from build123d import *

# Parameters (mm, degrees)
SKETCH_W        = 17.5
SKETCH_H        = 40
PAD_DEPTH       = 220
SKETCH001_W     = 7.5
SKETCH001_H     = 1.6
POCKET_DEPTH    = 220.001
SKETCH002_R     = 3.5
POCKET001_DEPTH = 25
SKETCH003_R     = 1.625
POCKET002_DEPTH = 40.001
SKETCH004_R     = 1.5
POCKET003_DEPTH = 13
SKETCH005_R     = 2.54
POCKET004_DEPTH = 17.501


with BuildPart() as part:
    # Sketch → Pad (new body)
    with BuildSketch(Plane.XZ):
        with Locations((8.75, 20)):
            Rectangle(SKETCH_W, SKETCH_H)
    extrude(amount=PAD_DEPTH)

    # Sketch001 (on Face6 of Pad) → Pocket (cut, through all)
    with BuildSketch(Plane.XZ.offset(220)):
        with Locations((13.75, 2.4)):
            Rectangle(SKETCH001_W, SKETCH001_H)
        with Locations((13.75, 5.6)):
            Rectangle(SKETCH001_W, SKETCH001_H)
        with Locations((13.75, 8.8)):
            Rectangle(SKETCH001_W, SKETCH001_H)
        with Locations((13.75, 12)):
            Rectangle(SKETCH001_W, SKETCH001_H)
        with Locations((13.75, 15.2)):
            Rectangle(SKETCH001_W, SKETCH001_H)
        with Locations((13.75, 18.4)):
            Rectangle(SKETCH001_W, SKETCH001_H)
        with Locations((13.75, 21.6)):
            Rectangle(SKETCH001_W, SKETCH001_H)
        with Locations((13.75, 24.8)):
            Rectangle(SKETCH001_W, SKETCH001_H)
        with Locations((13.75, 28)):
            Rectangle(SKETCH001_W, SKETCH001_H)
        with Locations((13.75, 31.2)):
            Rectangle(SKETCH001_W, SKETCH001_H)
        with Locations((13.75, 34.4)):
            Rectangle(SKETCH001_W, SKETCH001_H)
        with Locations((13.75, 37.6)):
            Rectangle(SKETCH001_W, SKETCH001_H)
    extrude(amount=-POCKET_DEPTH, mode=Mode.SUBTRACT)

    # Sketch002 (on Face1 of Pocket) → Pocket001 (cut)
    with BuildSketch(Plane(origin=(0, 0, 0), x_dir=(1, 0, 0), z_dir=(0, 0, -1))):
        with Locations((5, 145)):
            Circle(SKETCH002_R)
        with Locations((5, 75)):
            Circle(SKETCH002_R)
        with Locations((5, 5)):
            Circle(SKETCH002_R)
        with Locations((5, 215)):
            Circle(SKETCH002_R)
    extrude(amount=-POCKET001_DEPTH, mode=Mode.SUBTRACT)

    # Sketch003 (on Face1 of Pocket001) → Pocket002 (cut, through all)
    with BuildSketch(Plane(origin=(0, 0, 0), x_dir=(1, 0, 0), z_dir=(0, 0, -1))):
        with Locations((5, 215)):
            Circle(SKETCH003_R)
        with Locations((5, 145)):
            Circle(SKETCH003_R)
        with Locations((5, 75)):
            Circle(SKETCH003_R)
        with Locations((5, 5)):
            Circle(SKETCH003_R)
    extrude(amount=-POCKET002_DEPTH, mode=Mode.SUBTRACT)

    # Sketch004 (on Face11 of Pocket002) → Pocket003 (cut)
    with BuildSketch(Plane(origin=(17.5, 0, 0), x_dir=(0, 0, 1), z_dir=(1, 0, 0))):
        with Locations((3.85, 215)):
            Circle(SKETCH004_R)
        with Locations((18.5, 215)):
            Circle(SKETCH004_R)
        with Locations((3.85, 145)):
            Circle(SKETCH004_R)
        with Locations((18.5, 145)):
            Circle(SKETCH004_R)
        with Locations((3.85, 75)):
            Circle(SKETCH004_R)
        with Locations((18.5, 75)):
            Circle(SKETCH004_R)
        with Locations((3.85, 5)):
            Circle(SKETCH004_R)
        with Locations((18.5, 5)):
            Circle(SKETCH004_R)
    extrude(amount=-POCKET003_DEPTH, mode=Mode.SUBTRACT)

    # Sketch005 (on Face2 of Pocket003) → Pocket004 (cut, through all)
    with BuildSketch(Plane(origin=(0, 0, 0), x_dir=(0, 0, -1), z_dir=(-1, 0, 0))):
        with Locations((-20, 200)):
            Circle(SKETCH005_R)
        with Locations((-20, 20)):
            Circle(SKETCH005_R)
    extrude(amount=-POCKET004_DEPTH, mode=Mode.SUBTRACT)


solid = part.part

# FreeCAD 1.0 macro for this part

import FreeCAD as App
import Part
import Sketcher
from FreeCAD import Vector


def add_polygon(sketch, points):
    """Adds a closed chain of lines whose ends are joined by coincident constraints."""
    first, n = sketch.GeometryCount, len(points)
    for a, b in zip(points, points[1:] + points[:1]):
        sketch.addGeometry(Part.LineSegment(App.Vector(*a, 0), App.Vector(*b, 0)), False)
    for i in range(n):
        sketch.addConstraint(Sketcher.Constraint("Coincident", first + i, 2, first + (i + 1) % n, 1))

doc = App.newDocument("Part")
params = doc.addObject("Spreadsheet::Sheet", "Params")
for row, (alias, value) in enumerate([
    ("sketch1_height", "40 mm"),
    ("sketch1_width", "17.5 mm"),
    ("pad1_length", "220 mm"),
    ("sketch2_width", "7.5 mm"),
    ("sketch2_height", "1.6 mm"),
    ("sketch3_diameter", "7 mm"),
    ("pocket2_length", "25 mm"),
    ("sketch4_diameter", "3.25 mm"),
    ("sketch5_diameter", "3 mm"),
    ("pocket4_length", "13 mm"),
    ("sketch6_diameter", "5.08 mm"),
], start=1):
    params.set(f"A{row}", alias)
    params.set(f"B{row}", "=" + value)
    params.setAlias(f"B{row}", alias)

body = doc.addObject("PartDesign::Body", "Body")

# Sketch on XZ plane
sketch1 = doc.addObject("Sketcher::SketchObject", "Sketch")
body.addObject(sketch1)
sketch1.AttachmentSupport = (doc.XZ_Plane, [""])
sketch1.MapMode = "FlatFace"
add_polygon(sketch1, [(0, 40), (0, 0), (17.5, 0), (17.5, 40)])  # lines 0-3
sketch1.addConstraint([
    Sketcher.Constraint("Vertical", 0),
    Sketcher.Constraint("Horizontal", 1),
    Sketcher.Constraint("Vertical", 2),
    Sketcher.Constraint("Horizontal", 3),
    Sketcher.Constraint("Coincident", 0, 2, -1, 1),
    Sketcher.Constraint("DistanceY", 0, 2, 0, 1, 40.0),
    Sketcher.Constraint("DistanceX", 1, 1, 1, 2, 17.5),
])
sketch1.setExpression("Constraints[9]", "Params.sketch1_height")
sketch1.setExpression("Constraints[10]", "Params.sketch1_width")
pad1 = doc.addObject("PartDesign::Pad", "Pad")
body.addObject(pad1)
pad1.Profile = sketch1
pad1.setExpression("Length", "Params.pad1_length")

# Sketch on XZ plane
sketch2 = doc.addObject("Sketcher::SketchObject", "Sketch001")
body.addObject(sketch2)
sketch2.AttachmentSupport = (doc.XZ_Plane, [""])
sketch2.MapMode = "FlatFace"
sketch2.AttachmentOffset = App.Placement(Vector(0, 0, 220), App.Rotation())
add_polygon(sketch2, [(10, 3.2), (10, 1.6), (17.5, 1.6), (17.5, 3.2)])  # lines 0-3
add_polygon(sketch2, [(10, 6.4), (10, 4.8), (17.5, 4.8), (17.5, 6.4)])  # lines 4-7
add_polygon(sketch2, [(10, 9.6), (10, 8), (17.5, 8), (17.5, 9.6)])  # lines 8-11
add_polygon(sketch2, [(10, 12.8), (10, 11.2), (17.5, 11.2), (17.5, 12.8)])  # lines 12-15
add_polygon(sketch2, [(10, 16), (10, 14.4), (17.5, 14.4), (17.5, 16)])  # lines 16-19
add_polygon(sketch2, [(10, 19.2), (10, 17.6), (17.5, 17.6), (17.5, 19.2)])  # lines 20-23
add_polygon(sketch2, [(10, 22.4), (10, 20.8), (17.5, 20.8), (17.5, 22.4)])  # lines 24-27
add_polygon(sketch2, [(10, 25.6), (10, 24), (17.5, 24), (17.5, 25.6)])  # lines 28-31
add_polygon(sketch2, [(10, 28.8), (10, 27.2), (17.5, 27.2), (17.5, 28.8)])  # lines 32-35
add_polygon(sketch2, [(10, 32), (10, 30.4), (17.5, 30.4), (17.5, 32)])  # lines 36-39
add_polygon(sketch2, [(10, 35.2), (10, 33.6), (17.5, 33.6), (17.5, 35.2)])  # lines 40-43
add_polygon(sketch2, [(10, 38.4), (10, 36.8), (17.5, 36.8), (17.5, 38.4)])  # lines 44-47
sketch2.addConstraint([
    Sketcher.Constraint("Vertical", 0),
    Sketcher.Constraint("Horizontal", 1),
    Sketcher.Constraint("Vertical", 2),
    Sketcher.Constraint("Horizontal", 3),
    Sketcher.Constraint("Vertical", 4),
    Sketcher.Constraint("Horizontal", 5),
    Sketcher.Constraint("Vertical", 6),
    Sketcher.Constraint("Horizontal", 7),
    Sketcher.Constraint("Vertical", 8),
    Sketcher.Constraint("Horizontal", 9),
    Sketcher.Constraint("Vertical", 10),
    Sketcher.Constraint("Horizontal", 11),
    Sketcher.Constraint("Vertical", 12),
    Sketcher.Constraint("Horizontal", 13),
    Sketcher.Constraint("Vertical", 14),
    Sketcher.Constraint("Horizontal", 15),
    Sketcher.Constraint("Vertical", 16),
    Sketcher.Constraint("Horizontal", 17),
    Sketcher.Constraint("Vertical", 18),
    Sketcher.Constraint("Horizontal", 19),
    Sketcher.Constraint("Vertical", 20),
    Sketcher.Constraint("Horizontal", 21),
    Sketcher.Constraint("Vertical", 22),
    Sketcher.Constraint("Horizontal", 23),
    Sketcher.Constraint("Vertical", 24),
    Sketcher.Constraint("Horizontal", 25),
    Sketcher.Constraint("Vertical", 26),
    Sketcher.Constraint("Horizontal", 27),
    Sketcher.Constraint("Vertical", 28),
    Sketcher.Constraint("Horizontal", 29),
    Sketcher.Constraint("Vertical", 30),
    Sketcher.Constraint("Horizontal", 31),
    Sketcher.Constraint("Vertical", 32),
    Sketcher.Constraint("Horizontal", 33),
    Sketcher.Constraint("Vertical", 34),
    Sketcher.Constraint("Horizontal", 35),
    Sketcher.Constraint("Vertical", 36),
    Sketcher.Constraint("Horizontal", 37),
    Sketcher.Constraint("Vertical", 38),
    Sketcher.Constraint("Horizontal", 39),
    Sketcher.Constraint("Vertical", 40),
    Sketcher.Constraint("Horizontal", 41),
    Sketcher.Constraint("Vertical", 42),
    Sketcher.Constraint("Horizontal", 43),
    Sketcher.Constraint("Vertical", 44),
    Sketcher.Constraint("Horizontal", 45),
    Sketcher.Constraint("Vertical", 46),
    Sketcher.Constraint("Horizontal", 47),
    Sketcher.Constraint("Vertical", 3, 2, 4, 2),
    Sketcher.Constraint("Vertical", 2, 2, 5, 2),
    Sketcher.Constraint("Vertical", 7, 2, 8, 2),
    Sketcher.Constraint("Vertical", 6, 2, 9, 2),
    Sketcher.Constraint("Vertical", 11, 2, 12, 2),
    Sketcher.Constraint("Vertical", 10, 2, 13, 2),
    Sketcher.Constraint("Vertical", 15, 2, 16, 2),
    Sketcher.Constraint("Vertical", 14, 2, 17, 2),
    Sketcher.Constraint("Vertical", 19, 2, 20, 2),
    Sketcher.Constraint("Vertical", 18, 2, 21, 2),
    Sketcher.Constraint("Vertical", 23, 2, 24, 2),
    Sketcher.Constraint("Vertical", 22, 2, 25, 2),
    Sketcher.Constraint("Vertical", 27, 2, 28, 2),
    Sketcher.Constraint("Vertical", 26, 2, 29, 2),
    Sketcher.Constraint("Vertical", 31, 2, 32, 2),
    Sketcher.Constraint("Vertical", 30, 2, 33, 2),
    Sketcher.Constraint("Vertical", 35, 2, 36, 2),
    Sketcher.Constraint("Vertical", 34, 2, 37, 2),
    Sketcher.Constraint("Vertical", 39, 2, 40, 2),
    Sketcher.Constraint("Vertical", 38, 2, 41, 2),
    Sketcher.Constraint("Vertical", 43, 2, 44, 2),
    Sketcher.Constraint("Vertical", 42, 2, 45, 2),
    Sketcher.Constraint("Equal", 2, 4),
    Sketcher.Constraint("Equal", 6, 8),
    Sketcher.Constraint("Equal", 10, 12),
    Sketcher.Constraint("Equal", 14, 16),
    Sketcher.Constraint("Equal", 18, 20),
    Sketcher.Constraint("Equal", 22, 24),
    Sketcher.Constraint("Equal", 26, 28),
    Sketcher.Constraint("Equal", 30, 32),
    Sketcher.Constraint("Equal", 34, 36),
    Sketcher.Constraint("Equal", 38, 40),
    Sketcher.Constraint("Equal", 42, 44),
    Sketcher.Constraint("DistanceX", 1, 1, 1, 2, 7.5),
    Sketcher.Constraint("DistanceY", 0, 2, 0, 1, 1.6),
    Sketcher.Constraint("DistanceX", -1, 1, 0, 2, 10.0),
    Sketcher.Constraint("DistanceY", -1, 1, 8, 2, 8.0),
    Sketcher.Constraint("DistanceY", -1, 1, 18, 2, 16.0),
    Sketcher.Constraint("DistanceY", -1, 1, 28, 2, 24.0),
    Sketcher.Constraint("DistanceY", -1, 1, 38, 2, 32.0),
    Sketcher.Constraint("DistanceY", -1, 1, 0, 2, 1.6),
    Sketcher.Constraint("DistanceY", -1, 1, 4, 2, 4.8),
    Sketcher.Constraint("DistanceY", -1, 1, 12, 2, 11.2),
    Sketcher.Constraint("DistanceY", -1, 1, 20, 2, 17.6),
    Sketcher.Constraint("DistanceY", -1, 1, 24, 2, 20.8),
    Sketcher.Constraint("DistanceY", -1, 1, 32, 2, 27.2),
    Sketcher.Constraint("DistanceY", -1, 1, 40, 2, 33.6),
    Sketcher.Constraint("DistanceY", -1, 1, 44, 2, 36.8),
])
sketch2.setExpression("Constraints[129]", "Params.sketch2_width")
sketch2.setExpression("Constraints[130]", "Params.sketch2_height")
pocket1 = doc.addObject("PartDesign::Pocket", "Pocket")
body.addObject(pocket1)
pocket1.Profile = sketch2
pocket1.Type = "ThroughAll"

# Sketch on XY plane
sketch3 = doc.addObject("Sketcher::SketchObject", "Sketch002")
body.addObject(sketch3)
sketch3.AttachmentSupport = (doc.XY_Plane, [""])
sketch3.MapMode = "FlatFace"
sketch3.addGeometry([
    Part.Circle(Vector(5, -145, 0), Vector(0, 0, 1), 3.5),
    Part.Circle(Vector(5, -75, 0), Vector(0, 0, 1), 3.5),
    Part.Circle(Vector(5, -5, 0), Vector(0, 0, 1), 3.5),
    Part.Circle(Vector(5, -215, 0), Vector(0, 0, 1), 3.5),
], False)
sketch3.addConstraint([
    Sketcher.Constraint("Equal", 0, 1),
    Sketcher.Constraint("Equal", 1, 2),
    Sketcher.Constraint("Equal", 2, 3),
    Sketcher.Constraint("Vertical", 0, 3, 1, 3),
    Sketcher.Constraint("Vertical", 1, 3, 2, 3),
    Sketcher.Constraint("Vertical", 2, 3, 3, 3),
    Sketcher.Constraint("Diameter", 0, 7.0),
    Sketcher.Constraint("DistanceX", -1, 1, 0, 3, 5.0),
    Sketcher.Constraint("DistanceY", 0, 3, -1, 1, 145.0),
    Sketcher.Constraint("DistanceY", 1, 3, -1, 1, 75.0),
    Sketcher.Constraint("DistanceY", 2, 3, -1, 1, 5.0),
    Sketcher.Constraint("DistanceY", 3, 3, -1, 1, 215.0),
])
sketch3.setExpression("Constraints[6]", "Params.sketch3_diameter")
pocket2 = doc.addObject("PartDesign::Pocket", "Pocket001")
body.addObject(pocket2)
pocket2.Profile = sketch3
pocket2.setExpression("Length", "Params.pocket2_length")
pocket2.Reversed = True

# Sketch on XY plane
sketch4 = doc.addObject("Sketcher::SketchObject", "Sketch003")
body.addObject(sketch4)
sketch4.AttachmentSupport = (doc.XY_Plane, [""])
sketch4.MapMode = "FlatFace"
sketch4.addGeometry([
    Part.Circle(Vector(5, -215, 0), Vector(0, 0, 1), 1.625),
    Part.Circle(Vector(5, -145, 0), Vector(0, 0, 1), 1.625),
    Part.Circle(Vector(5, -75, 0), Vector(0, 0, 1), 1.625),
    Part.Circle(Vector(5, -5, 0), Vector(0, 0, 1), 1.625),
], False)
sketch4.addConstraint([
    Sketcher.Constraint("Equal", 0, 1),
    Sketcher.Constraint("Equal", 1, 2),
    Sketcher.Constraint("Equal", 2, 3),
    Sketcher.Constraint("Vertical", 0, 3, 1, 3),
    Sketcher.Constraint("Vertical", 1, 3, 2, 3),
    Sketcher.Constraint("Vertical", 2, 3, 3, 3),
    Sketcher.Constraint("Diameter", 0, 3.25),
    Sketcher.Constraint("DistanceX", -1, 1, 0, 3, 5.0),
    Sketcher.Constraint("DistanceY", 0, 3, -1, 1, 215.0),
    Sketcher.Constraint("DistanceY", 1, 3, -1, 1, 145.0),
    Sketcher.Constraint("DistanceY", 2, 3, -1, 1, 75.0),
    Sketcher.Constraint("DistanceY", 3, 3, -1, 1, 5.0),
])
sketch4.setExpression("Constraints[6]", "Params.sketch4_diameter")
pocket3 = doc.addObject("PartDesign::Pocket", "Pocket002")
body.addObject(pocket3)
pocket3.Profile = sketch4
pocket3.Type = "ThroughAll"
pocket3.Reversed = True

# Sketch on YZ plane
sketch5 = doc.addObject("Sketcher::SketchObject", "Sketch004")
body.addObject(sketch5)
sketch5.AttachmentSupport = (doc.YZ_Plane, [""])
sketch5.MapMode = "FlatFace"
sketch5.AttachmentOffset = App.Placement(Vector(0, 0, 17.5), App.Rotation())
sketch5.addGeometry([
    Part.Circle(Vector(-215, 3.85, 0), Vector(0, 0, 1), 1.5),  # 0
    Part.Circle(Vector(-215, 18.5, 0), Vector(0, 0, 1), 1.5),  # 1
    Part.Circle(Vector(-145, 3.85, 0), Vector(0, 0, 1), 1.5),  # 2
    Part.Circle(Vector(-145, 18.5, 0), Vector(0, 0, 1), 1.5),  # 3
    Part.Circle(Vector(-75, 3.85, 0), Vector(0, 0, 1), 1.5),  # 4
    Part.Circle(Vector(-75, 18.5, 0), Vector(0, 0, 1), 1.5),  # 5
    Part.Circle(Vector(-5, 3.85, 0), Vector(0, 0, 1), 1.5),  # 6
    Part.Circle(Vector(-5, 18.5, 0), Vector(0, 0, 1), 1.5),  # 7
], False)
sketch5.addConstraint([
    Sketcher.Constraint("Equal", 0, 1),
    Sketcher.Constraint("Equal", 1, 2),
    Sketcher.Constraint("Equal", 2, 3),
    Sketcher.Constraint("Equal", 3, 4),
    Sketcher.Constraint("Equal", 4, 5),
    Sketcher.Constraint("Equal", 5, 6),
    Sketcher.Constraint("Equal", 6, 7),
    Sketcher.Constraint("Horizontal", 0, 3, 2, 3),
    Sketcher.Constraint("Horizontal", 1, 3, 3, 3),
    Sketcher.Constraint("Horizontal", 2, 3, 4, 3),
    Sketcher.Constraint("Horizontal", 3, 3, 5, 3),
    Sketcher.Constraint("Horizontal", 4, 3, 6, 3),
    Sketcher.Constraint("Horizontal", 5, 3, 7, 3),
    Sketcher.Constraint("Vertical", 0, 3, 1, 3),
    Sketcher.Constraint("Vertical", 2, 3, 3, 3),
    Sketcher.Constraint("Vertical", 4, 3, 5, 3),
    Sketcher.Constraint("Vertical", 6, 3, 7, 3),
    Sketcher.Constraint("Diameter", 0, 3.0),
    Sketcher.Constraint("DistanceX", 0, 3, -1, 1, 215.0),
    Sketcher.Constraint("DistanceX", 2, 3, -1, 1, 145.0),
    Sketcher.Constraint("DistanceX", 4, 3, -1, 1, 75.0),
    Sketcher.Constraint("DistanceX", 6, 3, -1, 1, 5.0),
    Sketcher.Constraint("DistanceY", -1, 1, 1, 3, 18.5),
    Sketcher.Constraint("DistanceY", -1, 1, 0, 3, 3.85),
])
sketch5.setExpression("Constraints[17]", "Params.sketch5_diameter")
pocket4 = doc.addObject("PartDesign::Pocket", "Pocket003")
body.addObject(pocket4)
pocket4.Profile = sketch5
pocket4.setExpression("Length", "Params.pocket4_length")

# Sketch on YZ plane
sketch6 = doc.addObject("Sketcher::SketchObject", "Sketch005")
body.addObject(sketch6)
sketch6.AttachmentSupport = (doc.YZ_Plane, [""])
sketch6.MapMode = "FlatFace"
sketch6.addGeometry([
    Part.Circle(Vector(-200, 20, 0), Vector(0, 0, 1), 2.54),
    Part.Circle(Vector(-20, 20, 0), Vector(0, 0, 1), 2.54),
], False)
sketch6.addConstraint([
    Sketcher.Constraint("Equal", 0, 1),
    Sketcher.Constraint("Horizontal", 0, 3, 1, 3),
    Sketcher.Constraint("Diameter", 0, 5.08),
    Sketcher.Constraint("DistanceX", 0, 3, -1, 1, 200.0),
    Sketcher.Constraint("DistanceY", -1, 1, 0, 3, 20.0),
    Sketcher.Constraint("DistanceX", 1, 3, -1, 1, 20.0),
])
sketch6.setExpression("Constraints[2]", "Params.sketch6_diameter")
pocket5 = doc.addObject("PartDesign::Pocket", "Pocket004")
body.addObject(pocket5)
pocket5.Profile = sketch6
pocket5.Type = "ThroughAll"
pocket5.Reversed = True

doc.recompute()
